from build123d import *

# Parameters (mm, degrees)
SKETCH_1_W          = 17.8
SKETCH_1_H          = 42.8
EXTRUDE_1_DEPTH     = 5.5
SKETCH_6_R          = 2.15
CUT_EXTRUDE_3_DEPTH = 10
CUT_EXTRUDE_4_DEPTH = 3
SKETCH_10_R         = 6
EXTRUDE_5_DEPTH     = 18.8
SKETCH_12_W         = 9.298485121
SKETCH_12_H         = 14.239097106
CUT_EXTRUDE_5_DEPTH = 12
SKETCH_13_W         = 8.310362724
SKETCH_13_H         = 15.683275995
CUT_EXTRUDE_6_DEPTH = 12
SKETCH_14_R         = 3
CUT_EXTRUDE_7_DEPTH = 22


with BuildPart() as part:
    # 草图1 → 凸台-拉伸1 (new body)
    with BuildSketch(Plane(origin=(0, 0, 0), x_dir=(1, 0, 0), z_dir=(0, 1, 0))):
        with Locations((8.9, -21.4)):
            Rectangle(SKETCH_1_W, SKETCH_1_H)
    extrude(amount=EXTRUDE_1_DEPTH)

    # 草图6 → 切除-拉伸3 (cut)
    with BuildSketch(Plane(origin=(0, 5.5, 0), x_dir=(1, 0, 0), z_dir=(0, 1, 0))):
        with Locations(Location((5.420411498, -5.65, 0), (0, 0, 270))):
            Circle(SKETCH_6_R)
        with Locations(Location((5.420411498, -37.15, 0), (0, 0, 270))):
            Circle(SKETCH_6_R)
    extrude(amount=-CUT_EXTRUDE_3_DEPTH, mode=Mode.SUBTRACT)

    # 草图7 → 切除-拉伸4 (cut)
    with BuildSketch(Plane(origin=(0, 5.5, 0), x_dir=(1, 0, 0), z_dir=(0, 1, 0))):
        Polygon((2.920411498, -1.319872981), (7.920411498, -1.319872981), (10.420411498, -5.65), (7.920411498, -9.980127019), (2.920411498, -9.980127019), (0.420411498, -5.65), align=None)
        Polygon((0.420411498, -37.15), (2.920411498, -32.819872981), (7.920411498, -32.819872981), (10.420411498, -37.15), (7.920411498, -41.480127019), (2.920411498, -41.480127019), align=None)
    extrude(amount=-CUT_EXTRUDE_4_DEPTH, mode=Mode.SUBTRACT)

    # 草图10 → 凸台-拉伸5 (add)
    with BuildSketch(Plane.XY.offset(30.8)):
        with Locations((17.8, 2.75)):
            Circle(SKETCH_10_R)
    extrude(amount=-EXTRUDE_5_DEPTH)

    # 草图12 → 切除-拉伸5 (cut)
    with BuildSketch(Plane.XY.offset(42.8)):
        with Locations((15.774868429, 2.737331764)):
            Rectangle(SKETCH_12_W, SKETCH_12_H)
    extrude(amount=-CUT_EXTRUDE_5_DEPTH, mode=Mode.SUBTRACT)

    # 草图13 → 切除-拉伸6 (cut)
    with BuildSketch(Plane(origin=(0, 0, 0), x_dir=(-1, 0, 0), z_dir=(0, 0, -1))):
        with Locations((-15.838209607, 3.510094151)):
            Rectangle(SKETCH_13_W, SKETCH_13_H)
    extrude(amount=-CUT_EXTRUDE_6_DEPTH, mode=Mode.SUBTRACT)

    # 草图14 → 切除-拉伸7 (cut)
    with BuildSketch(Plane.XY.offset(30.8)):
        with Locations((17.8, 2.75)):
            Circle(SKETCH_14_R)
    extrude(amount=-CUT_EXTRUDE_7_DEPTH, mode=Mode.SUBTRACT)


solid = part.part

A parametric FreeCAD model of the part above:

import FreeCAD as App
import Part
import Sketcher

V = App.Vector
Q = App.Units.Quantity


def add_polygon(sketch, points):
    """Adds a closed chain of lines whose ends are joined by coincident constraints."""
    first, n = sketch.GeometryCount, len(points)
    for a, b in zip(points, points[1:] + points[:1]):
        sketch.addGeometry(Part.LineSegment(App.Vector(*a, 0), App.Vector(*b, 0)), False)
    for i in range(n):
        sketch.addConstraint(Sketcher.Constraint("Coincident", first + i, 2, first + (i + 1) % n, 1))

doc = App.newDocument("Part")
body = doc.addObject("PartDesign::Body", "Body")

# Sketch on XZ plane
sketch1 = body.newObject("Sketcher::SketchObject", "Sketch")
sketch1.AttachmentSupport = (doc.getObject("XZ_Plane"), [""])
sketch1.MapMode = "FlatFace"
add_polygon(sketch1, [(0, 0), (0, 43), (18, 43), (18, 0)])  # lines 0-3
sketch1.addConstraint([
    Sketcher.Constraint("Vertical", 0),
    Sketcher.Constraint("Horizontal", 1),
    Sketcher.Constraint("Vertical", 2),
    Sketcher.Constraint("Horizontal", 3),
    Sketcher.Constraint("Coincident", 3, 2, -1, 1),
    Sketcher.Constraint("DistanceX", 1, 1, 1, 2, Q("17.8 mm")),
    Sketcher.Constraint("DistanceY", 0, 1, 0, 2, Q("42.8 mm")),
])
pad1 = body.newObject("PartDesign::Pad", "Pad")
pad1.Profile = sketch1
pad1.Length = 5.5
pad1.Reversed = True

# Sketch on XZ plane
sketch2 = body.newObject("Sketcher::SketchObject", "Sketch001")
sketch2.AttachmentSupport = (doc.getObject("XZ_Plane"), [""])
sketch2.MapMode = "FlatFace"
sketch2.AttachmentOffset = App.Placement(V(0, 0, -5.5), App.Rotation())
sketch2.addGeometry([
    Part.Circle(V(5.4, 5.7, 0), V(0, 0, 1), 2.1),
    Part.Circle(V(5.4, 37.1, 0), V(0, 0, 1), 2.1),
], False)
sketch2.addConstraint([
    Sketcher.Constraint("Equal", 0, 1),
    Sketcher.Constraint("Vertical", 0, 3, 1, 3),
    Sketcher.Constraint("Diameter", 0, Q("4.3 mm")),
    Sketcher.Constraint("DistanceY", 0, 3, 1, 3, Q("31.5 mm")),
    Sketcher.Constraint("DistanceY", -1, 1, 0, 3, Q("5.65 mm")),
    Sketcher.Constraint("DistanceX", -1, 1, 0, 3, Q("5.420411 mm")),
])
pocket1 = body.newObject("PartDesign::Pocket", "Pocket")
pocket1.Profile = sketch2
pocket1.Length = 10
pocket1.Reversed = True

# Sketch on XZ plane
sketch3 = body.newObject("Sketcher::SketchObject", "Sketch002")
sketch3.AttachmentSupport = (doc.getObject("XZ_Plane"), [""])
sketch3.MapMode = "FlatFace"
sketch3.AttachmentOffset = App.Placement(V(0, 0, -5.5), App.Rotation())
add_polygon(sketch3, [(8, 1), (3, 1), (0, 6), (3, 10), (8, 10), (10, 6)])  # lines 0-5
add_polygon(sketch3, [(3, 33), (0, 37), (3, 41), (8, 41), (10, 37), (8, 33)])  # lines 6-11
sketch3.addConstraint([
    Sketcher.Constraint("Horizontal", 0),
    Sketcher.Constraint("Horizontal", 3),
    Sketcher.Constraint("Horizontal", 8),
    Sketcher.Constraint("Horizontal", 11),
    Sketcher.Constraint("Parallel", 1, 4),
    Sketcher.Constraint("Parallel", 2, 5),
    Sketcher.Constraint("Parallel", 4, 6),
    Sketcher.Constraint("Parallel", 5, 7),
    Sketcher.Constraint("Parallel", 6, 9),
    Sketcher.Constraint("Parallel", 7, 10),
    Sketcher.Constraint("Horizontal", 1, 2, 4, 2),
    Sketcher.Constraint("Horizontal", 6, 2, 9, 2),
    Sketcher.Constraint("Vertical", 0, 2, 2, 2),
    Sketcher.Constraint("Vertical", 3, 2, 5, 2),
    Sketcher.Constraint("Vertical", 1, 2, 6, 2),
    Sketcher.Constraint("Vertical", 2, 2, 7, 2),
    Sketcher.Constraint("Vertical", 5, 2, 8, 2),
    Sketcher.Constraint("Vertical", 8, 2, 10, 2),
    Sketcher.Constraint("DistanceX", 0, 2, 0, 1, Q("5 mm")),
    Sketcher.Constraint("Angle", 1, Q("120 deg")),
    Sketcher.Constraint("Distance", 1, Q("5 mm")),
    Sketcher.Constraint("DistanceY", 1, 2, 6, 2, Q("31.5 mm")),
    Sketcher.Constraint("DistanceY", -1, 1, 1, 2, Q("5.65 mm")),
    Sketcher.Constraint("DistanceX", -1, 1, 0, 2, Q("2.920411 mm")),
])
pocket2 = body.newObject("PartDesign::Pocket", "Pocket001")
pocket2.Profile = sketch3
pocket2.Length = 3
pocket2.Reversed = True

# Sketch on XY plane
sketch4 = body.newObject("Sketcher::SketchObject", "Sketch003")
sketch4.AttachmentSupport = (doc.getObject("XY_Plane"), [""])
sketch4.MapMode = "FlatFace"
sketch4.AttachmentOffset = App.Placement(V(0, 0, 30.8), App.Rotation())
sketch4.addGeometry(Part.Circle(V(18, 3, 0), V(0, 0, 1), 6), False)
sketch4.addConstraint([
    Sketcher.Constraint("Diameter", 0, Q("12 mm")),
    Sketcher.Constraint("DistanceX", -1, 1, 0, 3, Q("17.8 mm")),
    Sketcher.Constraint("DistanceY", -1, 1, 0, 3, Q("2.75 mm")),
])
pad2 = body.newObject("PartDesign::Pad", "Pad001")
pad2.Profile = sketch4
pad2.Length = 18.8
pad2.Reversed = True

# Sketch on XY plane
sketch5 = body.newObject("Sketcher::SketchObject", "Sketch004")
sketch5.AttachmentSupport = (doc.getObject("XY_Plane"), [""])
sketch5.MapMode = "FlatFace"
sketch5.AttachmentOffset = App.Placement(V(0, 0, 42.8), App.Rotation())
add_polygon(sketch5, [(11, 10), (11, -4), (20, -4), (20, 10)])  # lines 0-3
sketch5.addConstraint([
    Sketcher.Constraint("Vertical", 0),
    Sketcher.Constraint("Horizontal", 1),
    Sketcher.Constraint("Vertical", 2),
    Sketcher.Constraint("Horizontal", 3),
    Sketcher.Constraint("DistanceX", 1, 1, 1, 2, Q("9.298485 mm")),
    Sketcher.Constraint("DistanceY", 0, 2, 0, 1, Q("14.239097 mm")),
    Sketcher.Constraint("DistanceX", -1, 1, 1, 2, Q("20.424111 mm")),
    Sketcher.Constraint("DistanceY", -1, 1, 2, 2, Q("9.85688 mm")),
])
pocket3 = body.newObject("PartDesign::Pocket", "Pocket002")
pocket3.Profile = sketch5
pocket3.Length = 12

# Sketch on XY plane
sketch6 = body.newObject("Sketcher::SketchObject", "Sketch005")
sketch6.AttachmentSupport = (doc.getObject("XY_Plane"), [""])
sketch6.MapMode = "FlatFace"
add_polygon(sketch6, [(20, 11), (20, -4), (12, -4), (12, 11)])  # lines 0-3
sketch6.addConstraint([
    Sketcher.Constraint("Vertical", 0),
    Sketcher.Constraint("Horizontal", 1),
    Sketcher.Constraint("Vertical", 2),
    Sketcher.Constraint("Horizontal", 3),
    Sketcher.Constraint("DistanceX", 1, 2, 1, 1, Q("8.310363 mm")),
    Sketcher.Constraint("DistanceY", 0, 2, 0, 1, Q("15.683276 mm")),
    Sketcher.Constraint("DistanceX", -1, 1, 0, 2, Q("19.993391 mm")),
    Sketcher.Constraint("DistanceY", 0, 2, -1, 1, Q("4.331544 mm")),
])
pocket4 = body.newObject("PartDesign::Pocket", "Pocket003")
pocket4.Profile = sketch6
pocket4.Length = 12
pocket4.Reversed = True

# Sketch on XY plane
sketch7 = body.newObject("Sketcher::SketchObject", "Sketch006")
sketch7.AttachmentSupport = (doc.getObject("XY_Plane"), [""])
sketch7.MapMode = "FlatFace"
sketch7.AttachmentOffset = App.Placement(V(0, 0, 30.8), App.Rotation())
sketch7.addGeometry(Part.Circle(V(17.8, 2.8, 0), V(0, 0, 1), 3), False)
sketch7.addConstraint([
    Sketcher.Constraint("Diameter", 0, Q("6 mm")),
    Sketcher.Constraint("DistanceX", -1, 1, 0, 3, Q("17.8 mm")),
    Sketcher.Constraint("DistanceY", -1, 1, 0, 3, Q("2.75 mm")),
])
pocket5 = body.newObject("PartDesign::Pocket", "Pocket004")
pocket5.Profile = sketch7
pocket5.Length = 22

doc.recompute()
